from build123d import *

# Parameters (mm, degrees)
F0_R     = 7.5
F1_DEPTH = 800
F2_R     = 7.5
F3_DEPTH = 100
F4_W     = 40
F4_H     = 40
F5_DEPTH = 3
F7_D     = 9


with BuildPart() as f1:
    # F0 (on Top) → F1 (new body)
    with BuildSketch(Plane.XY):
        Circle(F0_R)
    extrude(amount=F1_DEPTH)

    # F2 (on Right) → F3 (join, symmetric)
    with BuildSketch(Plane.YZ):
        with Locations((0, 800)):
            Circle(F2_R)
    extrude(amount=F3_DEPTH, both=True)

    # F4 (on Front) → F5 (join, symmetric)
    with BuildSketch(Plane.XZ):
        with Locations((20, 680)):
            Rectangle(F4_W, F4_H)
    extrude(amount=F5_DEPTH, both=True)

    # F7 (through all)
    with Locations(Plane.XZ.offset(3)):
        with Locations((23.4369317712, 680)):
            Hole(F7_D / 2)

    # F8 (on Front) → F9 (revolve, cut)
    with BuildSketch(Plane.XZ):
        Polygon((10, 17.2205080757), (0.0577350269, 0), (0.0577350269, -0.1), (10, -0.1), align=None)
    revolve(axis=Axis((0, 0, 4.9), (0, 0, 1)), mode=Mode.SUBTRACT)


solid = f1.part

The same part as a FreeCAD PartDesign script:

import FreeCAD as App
import Part
import Sketcher
from FreeCAD import Vector
Q = App.Units.Quantity

doc = App.newDocument("Part")
body = doc.addObject("PartDesign::Body", "Body")

sketch1 = body.newObject("Sketcher::SketchObject", "Sketch")
sketch1.AttachmentSupport = (doc.getObject("XY_Plane"), [""])
sketch1.MapMode = "FlatFace"
sketch1.addGeometry(Part.Circle(Vector(0, 0, 0), Vector(0, 0, 1), 8), False)
sketch1.addConstraint(Sketcher.Constraint("Coincident", 0, 3, -1, 1))
sketch1.addConstraint(Sketcher.Constraint("Diameter", 0, Q("15 mm")))
pad1 = body.newObject("PartDesign::Pad", "Pad")
pad1.Profile = sketch1
pad1.Length = 800

sketch2 = body.newObject("Sketcher::SketchObject", "Sketch001")
sketch2.AttachmentSupport = (doc.getObject("YZ_Plane"), [""])
sketch2.MapMode = "FlatFace"
sketch2.addGeometry(Part.Circle(Vector(0, 800, 0), Vector(0, 0, 1), 8), False)
sketch2.addConstraint(Sketcher.Constraint("PointOnObject", 0, 3, -2))
sketch2.addConstraint(Sketcher.Constraint("Diameter", 0, Q("15 mm")))
sketch2.addConstraint(Sketcher.Constraint("DistanceY", -1, 1, 0, 3, Q("800 mm")))
pad2 = body.newObject("PartDesign::Pad", "Pad001")
pad2.Profile = sketch2
pad2.Length = 200
pad2.Midplane = True

sketch3 = body.newObject("Sketcher::SketchObject", "Sketch002")
sketch3.AttachmentSupport = (doc.getObject("XZ_Plane"), [""])
sketch3.MapMode = "FlatFace"
sketch3.addGeometry(Part.LineSegment(Vector(0, 700, 0), Vector(0, 660, 0)), False)
sketch3.addGeometry(Part.LineSegment(Vector(0, 660, 0), Vector(40, 660, 0)), False)
sketch3.addGeometry(Part.LineSegment(Vector(40, 660, 0), Vector(40, 700, 0)), False)
sketch3.addGeometry(Part.LineSegment(Vector(40, 700, 0), Vector(0, 700, 0)), False)
sketch3.addConstraint(Sketcher.Constraint("Coincident", 0, 2, 1, 1))
sketch3.addConstraint(Sketcher.Constraint("Coincident", 1, 2, 2, 1))
sketch3.addConstraint(Sketcher.Constraint("Coincident", 2, 2, 3, 1))
sketch3.addConstraint(Sketcher.Constraint("Coincident", 3, 2, 0, 1))
sketch3.addConstraint(Sketcher.Constraint("Vertical", 0))
sketch3.addConstraint(Sketcher.Constraint("Horizontal", 1))
sketch3.addConstraint(Sketcher.Constraint("Vertical", 2))
sketch3.addConstraint(Sketcher.Constraint("Horizontal", 3))
sketch3.addConstraint(Sketcher.Constraint("PointOnObject", 0, 2, -2))
sketch3.addConstraint(Sketcher.Constraint("Equal", 3, 0))
sketch3.addConstraint(Sketcher.Constraint("DistanceX", 1, 1, 1, 2, Q("40 mm")))
sketch3.addConstraint(Sketcher.Constraint("DistanceY", -1, 1, 0, 2, Q("660 mm")))
pad3 = body.newObject("PartDesign::Pad", "Pad002")
pad3.Profile = sketch3
pad3.Length = 6
pad3.Midplane = True

sketch4 = body.newObject("Sketcher::SketchObject", "Sketch003")
sketch4.AttachmentSupport = (doc.getObject("XZ_Plane"), [""])
sketch4.MapMode = "FlatFace"
sketch4.AttachmentOffset = App.Placement(Vector(0, 0, 3), App.Rotation())
sketch4.addGeometry(Part.Circle(Vector(23.4, 680, 0), Vector(0, 0, 1), 4.5), False)
sketch4.addConstraint(Sketcher.Constraint("Diameter", 0, Q("9 mm")))
sketch4.addConstraint(Sketcher.Constraint("DistanceY", -1, 1, 0, 3, Q("680 mm")))
sketch4.addConstraint(Sketcher.Constraint("DistanceX", -1, 1, 0, 3, Q("23.436932 mm")))
doc.recompute()
hole = body.newObject("PartDesign::Hole", "Hole")
hole.Profile = sketch4
hole.ThreadType = "None"
hole.Diameter = 9
hole.DepthType = "ThroughAll"

sketch5 = body.newObject("Sketcher::SketchObject", "Sketch004")
sketch5.AttachmentSupport = (doc.getObject("XZ_Plane"), [""])
sketch5.MapMode = "FlatFace"
sketch5.addGeometry(Part.LineSegment(Vector(10, 17.22, 0), Vector(0.06, 0, 0)), False)
sketch5.addGeometry(Part.LineSegment(Vector(0.06, 0, 0), Vector(0.06, -0.1, 0)), False)
sketch5.addGeometry(Part.LineSegment(Vector(0.06, -0.1, 0), Vector(10, -0.1, 0)), False)
sketch5.addGeometry(Part.LineSegment(Vector(10, -0.1, 0), Vector(10, 17.22, 0)), False)
sketch5.addConstraint(Sketcher.Constraint("Coincident", 0, 2, 1, 1))
sketch5.addConstraint(Sketcher.Constraint("Coincident", 1, 2, 2, 1))
sketch5.addConstraint(Sketcher.Constraint("Coincident", 2, 2, 3, 1))
sketch5.addConstraint(Sketcher.Constraint("Coincident", 3, 2, 0, 1))
sketch5.addConstraint(Sketcher.Constraint("Vertical", 1))
sketch5.addConstraint(Sketcher.Constraint("Horizontal", 2))
sketch5.addConstraint(Sketcher.Constraint("Vertical", 3))
sketch5.addConstraint(Sketcher.Constraint("PointOnObject", 0, 2, -1))
sketch5.addConstraint(Sketcher.Constraint("Angle", 0, Q("-120 deg")))
sketch5.addConstraint(Sketcher.Constraint("DistanceY", 1, 2, 1, 1, Q("0.1 mm")))
sketch5.addConstraint(Sketcher.Constraint("DistanceX", -1, 1, 2, 2, Q("10 mm")))
sketch5.addConstraint(Sketcher.Constraint("DistanceY", 3, 1, 3, 2, Q("17.320508 mm")))
groove = body.newObject("PartDesign::Groove", "Groove")
groove.Profile = sketch5
groove.ReferenceAxis = (sketch5, ["V_Axis"])
groove.Angle = 360

doc.recompute()
